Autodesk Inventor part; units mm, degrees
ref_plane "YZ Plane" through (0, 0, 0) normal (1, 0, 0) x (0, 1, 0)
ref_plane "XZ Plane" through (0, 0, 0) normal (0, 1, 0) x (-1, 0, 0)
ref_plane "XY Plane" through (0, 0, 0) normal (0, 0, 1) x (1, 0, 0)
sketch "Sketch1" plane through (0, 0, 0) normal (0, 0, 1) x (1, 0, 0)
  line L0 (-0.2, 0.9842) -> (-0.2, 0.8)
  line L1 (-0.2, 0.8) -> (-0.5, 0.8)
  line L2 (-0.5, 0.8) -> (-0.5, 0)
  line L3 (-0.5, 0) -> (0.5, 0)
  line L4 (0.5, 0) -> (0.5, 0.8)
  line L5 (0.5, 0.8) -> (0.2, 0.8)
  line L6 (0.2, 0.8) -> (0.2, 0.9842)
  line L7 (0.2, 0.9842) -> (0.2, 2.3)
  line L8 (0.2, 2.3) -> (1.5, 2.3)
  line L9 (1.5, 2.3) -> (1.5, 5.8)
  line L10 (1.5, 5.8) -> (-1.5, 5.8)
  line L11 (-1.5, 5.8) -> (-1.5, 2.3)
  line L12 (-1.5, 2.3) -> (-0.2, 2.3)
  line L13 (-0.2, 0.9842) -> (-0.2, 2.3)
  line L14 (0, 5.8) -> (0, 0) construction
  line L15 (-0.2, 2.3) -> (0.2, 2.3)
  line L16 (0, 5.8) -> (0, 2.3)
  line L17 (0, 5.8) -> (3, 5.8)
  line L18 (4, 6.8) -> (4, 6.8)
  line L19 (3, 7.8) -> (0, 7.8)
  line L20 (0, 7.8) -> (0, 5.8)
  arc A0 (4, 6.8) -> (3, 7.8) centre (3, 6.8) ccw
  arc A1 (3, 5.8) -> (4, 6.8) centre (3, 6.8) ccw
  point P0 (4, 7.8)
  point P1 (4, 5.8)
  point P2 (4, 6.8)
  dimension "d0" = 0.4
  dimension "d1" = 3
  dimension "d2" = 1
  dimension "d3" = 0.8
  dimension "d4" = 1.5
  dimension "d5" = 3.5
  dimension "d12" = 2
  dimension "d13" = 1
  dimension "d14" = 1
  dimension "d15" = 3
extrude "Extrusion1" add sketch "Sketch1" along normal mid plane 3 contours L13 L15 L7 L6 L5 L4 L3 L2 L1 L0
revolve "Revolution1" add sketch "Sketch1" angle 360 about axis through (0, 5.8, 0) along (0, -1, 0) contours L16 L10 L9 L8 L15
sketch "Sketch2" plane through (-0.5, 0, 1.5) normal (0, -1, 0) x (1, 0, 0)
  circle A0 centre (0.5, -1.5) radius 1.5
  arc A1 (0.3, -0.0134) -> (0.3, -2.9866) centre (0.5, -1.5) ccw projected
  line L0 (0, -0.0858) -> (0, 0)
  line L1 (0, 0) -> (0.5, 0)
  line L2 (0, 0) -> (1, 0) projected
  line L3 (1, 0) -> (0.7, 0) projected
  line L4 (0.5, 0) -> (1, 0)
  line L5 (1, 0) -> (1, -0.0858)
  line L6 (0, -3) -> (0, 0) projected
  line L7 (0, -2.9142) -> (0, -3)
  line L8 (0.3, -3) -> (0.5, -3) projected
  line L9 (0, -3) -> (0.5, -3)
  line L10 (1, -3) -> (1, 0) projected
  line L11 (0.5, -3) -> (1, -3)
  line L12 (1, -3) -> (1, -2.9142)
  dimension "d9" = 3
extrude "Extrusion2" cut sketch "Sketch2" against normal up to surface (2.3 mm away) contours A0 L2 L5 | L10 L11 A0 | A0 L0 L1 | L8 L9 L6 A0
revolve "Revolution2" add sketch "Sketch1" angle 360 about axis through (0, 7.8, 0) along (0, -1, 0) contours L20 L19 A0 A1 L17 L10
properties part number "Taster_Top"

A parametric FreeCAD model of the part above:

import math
import FreeCAD as App
import Part
import Sketcher
Q = App.Units.Quantity

doc = App.newDocument("Part")
body = doc.addObject("PartDesign::Body", "Body")

# Sketch on XY plane
sketch1 = body.newObject("Sketcher::SketchObject", "Sketch")
sketch1.AttachmentSupport = (doc.getObject("XY_Plane"), [""])
sketch1.MapMode = "FlatFace"
sketch1.addGeometry([
    Part.LineSegment(App.Vector(-0.2, 2.3, 0), App.Vector(-0.2, 0.8, 0)),  # 0
    Part.LineSegment(App.Vector(-0.2, 0.8, 0), App.Vector(-0.5, 0.8, 0)),  # 1
    Part.LineSegment(App.Vector(-0.5, 0.8, 0), App.Vector(-0.5, 0, 0)),  # 2
    Part.LineSegment(App.Vector(-0.5, 0, 0), App.Vector(0.5, 0, 0)),  # 3
    Part.LineSegment(App.Vector(0.5, 0, 0), App.Vector(0.5, 0.8, 0)),  # 4
    Part.LineSegment(App.Vector(0.5, 0.8, 0), App.Vector(0.2, 0.8, 0)),  # 5
    Part.LineSegment(App.Vector(0.2, 0.8, 0), App.Vector(0.2, 2.3, 0)),  # 6
    Part.LineSegment(App.Vector(0.2, 2.3, 0), App.Vector(-0.2, 2.3, 0)),  # 7
], False)
sketch1.addConstraint([
    Sketcher.Constraint("Coincident", 0, 2, 1, 1),
    Sketcher.Constraint("Coincident", 1, 2, 2, 1),
    Sketcher.Constraint("Coincident", 2, 2, 3, 1),
    Sketcher.Constraint("Coincident", 3, 2, 4, 1),
    Sketcher.Constraint("Coincident", 4, 2, 5, 1),
    Sketcher.Constraint("Coincident", 5, 2, 6, 1),
    Sketcher.Constraint("Coincident", 6, 2, 7, 1),
    Sketcher.Constraint("Coincident", 7, 2, 0, 1),
    Sketcher.Constraint("Vertical", 0),
    Sketcher.Constraint("Horizontal", 1),
    Sketcher.Constraint("Vertical", 2),
    Sketcher.Constraint("Horizontal", 3),
    Sketcher.Constraint("Vertical", 4),
    Sketcher.Constraint("Horizontal", 5),
    Sketcher.Constraint("Vertical", 6),
    Sketcher.Constraint("Horizontal", 7),
    Sketcher.Constraint("Symmetric", 2, 2, 3, 2, -1, 1),
    Sketcher.Constraint("Symmetric", 0, 2, 5, 2, -2),
    Sketcher.Constraint("DistanceX", 3, 1, 3, 2, Q("1 mm")),
    Sketcher.Constraint("DistanceX", 7, 2, 7, 1, Q("0.4 mm")),
    Sketcher.Constraint("DistanceY", 0, 2, 0, 1, Q("1.5 mm")),
    Sketcher.Constraint("DistanceY", 2, 2, 2, 1, Q("0.8 mm")),
])
pad1 = body.newObject("PartDesign::Pad", "Pad")
pad1.Profile = sketch1
pad1.Length = 3
pad1.Midplane = True

# Sketch on XY plane
sketch2 = body.newObject("Sketcher::SketchObject", "Sketch001")
sketch2.AttachmentSupport = (doc.getObject("XY_Plane"), [""])
sketch2.MapMode = "FlatFace"
sketch2.addGeometry([
    Part.LineSegment(App.Vector(0, 5.8, 0), App.Vector(0, 2.3, 0)),
    Part.LineSegment(App.Vector(0, 2.3, 0), App.Vector(1.5, 2.3, 0)),
    Part.LineSegment(App.Vector(1.5, 2.3, 0), App.Vector(1.5, 5.8, 0)),
    Part.LineSegment(App.Vector(1.5, 5.8, 0), App.Vector(0, 5.8, 0)),
], False)
sketch2.addConstraint([
    Sketcher.Constraint("Coincident", 0, 2, 1, 1),
    Sketcher.Constraint("Coincident", 1, 2, 2, 1),
    Sketcher.Constraint("Coincident", 2, 2, 3, 1),
    Sketcher.Constraint("Coincident", 3, 2, 0, 1),
    Sketcher.Constraint("Vertical", 0),
    Sketcher.Constraint("Horizontal", 1),
    Sketcher.Constraint("Vertical", 2),
    Sketcher.Constraint("Horizontal", 3),
    Sketcher.Constraint("PointOnObject", 0, 2, -2),
    Sketcher.Constraint("DistanceX", 1, 1, 1, 2, Q("1.5 mm")),
    Sketcher.Constraint("DistanceY", 0, 2, 0, 1, Q("3.5 mm")),
    Sketcher.Constraint("DistanceY", -1, 1, 0, 2, Q("2.3 mm")),
])
revolution = body.newObject("PartDesign::Revolution", "Revolution")
revolution.Profile = sketch2
revolution.ReferenceAxis = (sketch2, ["V_Axis"])
revolution.Angle = 360

# Sketch on XZ plane
sketch3 = body.newObject("Sketcher::SketchObject", "Sketch002")
sketch3.AttachmentSupport = (doc.getObject("XZ_Plane"), [""])
sketch3.MapMode = "FlatFace"
sketch3.addGeometry([
    Part.ArcOfCircle(Part.Circle(App.Vector(0, 0, 0), App.Vector(0, 0, 1), 1.5), math.radians(70.53), math.radians(90)),  # 0
    Part.LineSegment(App.Vector(0.5, 1.41, 0), App.Vector(0.5, 1.5, 0)),  # 1
    Part.LineSegment(App.Vector(0.5, 1.5, 0), App.Vector(0, 1.5, 0)),  # 2
    Part.LineSegment(App.Vector(0.5, -1.5, 0), App.Vector(0.5, -1.41, 0)),  # 3
    Part.ArcOfCircle(Part.Circle(App.Vector(0, 0, 0), App.Vector(0, 0, 1), 1.5), math.radians(-90), math.radians(-70.53)),  # 4
    Part.LineSegment(App.Vector(0, -1.5, 0), App.Vector(0.5, -1.5, 0)),  # 5
    Part.ArcOfCircle(Part.Circle(App.Vector(0, 0, 0), App.Vector(0, 0, 1), 1.5), math.radians(90), math.radians(109.47)),  # 6
    Part.LineSegment(App.Vector(0, 1.5, 0), App.Vector(-0.5, 1.5, 0)),  # 7
    Part.LineSegment(App.Vector(-0.5, 1.5, 0), App.Vector(-0.5, 1.41, 0)),  # 8
    Part.LineSegment(App.Vector(-0.5, -1.5, 0), App.Vector(0, -1.5, 0)),  # 9
    Part.ArcOfCircle(Part.Circle(App.Vector(0, 0, 0), App.Vector(0, 0, 1), 1.5), math.radians(-109.47), math.radians(-90)),  # 10
    Part.LineSegment(App.Vector(-0.5, -1.41, 0), App.Vector(-0.5, -1.5, 0)),  # 11
], False)
sketch3.addConstraint([
    Sketcher.Constraint("Coincident", 0, 1, 1, 1),
    Sketcher.Constraint("Coincident", 1, 2, 2, 1),
    Sketcher.Constraint("Tangent", 2, 2, 0, 2),
    Sketcher.Constraint("Coincident", 3, 2, 4, 2),
    Sketcher.Constraint("Tangent", 4, 1, 5, 1),
    Sketcher.Constraint("Coincident", 5, 2, 3, 1),
    Sketcher.Constraint("Tangent", 6, 1, 7, 1),
    Sketcher.Constraint("Coincident", 7, 2, 8, 1),
    Sketcher.Constraint("Coincident", 8, 2, 6, 2),
    Sketcher.Constraint("Tangent", 9, 2, 10, 2),
    Sketcher.Constraint("Coincident", 10, 1, 11, 1),
    Sketcher.Constraint("Coincident", 11, 2, 9, 1),
    Sketcher.Constraint("Vertical", 1),
    Sketcher.Constraint("Horizontal", 2),
    Sketcher.Constraint("Vertical", 3),
    Sketcher.Constraint("Horizontal", 5),
    Sketcher.Constraint("Horizontal", 7),
    Sketcher.Constraint("Vertical", 8),
    Sketcher.Constraint("Horizontal", 9),
    Sketcher.Constraint("Vertical", 11),
    Sketcher.Constraint("Coincident", 0, 3, -1, 1),
    Sketcher.Constraint("Coincident", 4, 3, -1, 1),
    Sketcher.Constraint("Coincident", 6, 3, -1, 1),
    Sketcher.Constraint("Coincident", 10, 3, -1, 1),
    Sketcher.Constraint("Equal", 0, 4),
    Sketcher.Constraint("Equal", 4, 6),
    Sketcher.Constraint("Equal", 6, 10),
    Sketcher.Constraint("Horizontal", 0, 1, 8, 2),
    Sketcher.Constraint("Horizontal", 3, 2, 10, 1),
    Sketcher.Constraint("Vertical", 1, 2, 3, 2),
    Sketcher.Constraint("Radius", 0, Q("1.5 mm")),
    Sketcher.Constraint("DistanceX", 2, 2, 2, 1, Q("0.5 mm")),
])
pocket1 = body.newObject("PartDesign::Pocket", "Pocket")
pocket1.Profile = sketch3
pocket1.Length = 2.3

# Sketch on XY plane
sketch4 = body.newObject("Sketcher::SketchObject", "Sketch003")
sketch4.AttachmentSupport = (doc.getObject("XY_Plane"), [""])
sketch4.MapMode = "FlatFace"
sketch4.addGeometry([
    Part.LineSegment(App.Vector(0, 7.8, 0), App.Vector(0, 5.8, 0)),
    Part.LineSegment(App.Vector(0, 5.8, 0), App.Vector(3, 5.8, 0)),
    Part.ArcOfCircle(Part.Circle(App.Vector(3, 6.8, 0), App.Vector(0, 0, 1), 1), math.radians(-90), math.radians(90)),
    Part.LineSegment(App.Vector(3, 7.8, 0), App.Vector(0, 7.8, 0)),
], False)
sketch4.addConstraint([
    Sketcher.Constraint("Coincident", 0, 2, 1, 1),
    Sketcher.Constraint("Tangent", 1, 2, 2, 1),
    Sketcher.Constraint("Tangent", 2, 2, 3, 1),
    Sketcher.Constraint("Coincident", 3, 2, 0, 1),
    Sketcher.Constraint("Vertical", 0),
    Sketcher.Constraint("Horizontal", 1),
    Sketcher.Constraint("Horizontal", 3),
    Sketcher.Constraint("PointOnObject", 0, 2, -2),
    Sketcher.Constraint("Radius", 2, Q("1 mm")),
    Sketcher.Constraint("DistanceX", 1, 1, 1, 2, Q("3 mm")),
    Sketcher.Constraint("DistanceY", -1, 1, 2, 3, Q("6.8 mm")),
])
revolution2 = body.newObject("PartDesign::Revolution", "Revolution001")
revolution2.Profile = sketch4
revolution2.ReferenceAxis = (sketch4, ["V_Axis"])
revolution2.Angle = 360

doc.recompute()
